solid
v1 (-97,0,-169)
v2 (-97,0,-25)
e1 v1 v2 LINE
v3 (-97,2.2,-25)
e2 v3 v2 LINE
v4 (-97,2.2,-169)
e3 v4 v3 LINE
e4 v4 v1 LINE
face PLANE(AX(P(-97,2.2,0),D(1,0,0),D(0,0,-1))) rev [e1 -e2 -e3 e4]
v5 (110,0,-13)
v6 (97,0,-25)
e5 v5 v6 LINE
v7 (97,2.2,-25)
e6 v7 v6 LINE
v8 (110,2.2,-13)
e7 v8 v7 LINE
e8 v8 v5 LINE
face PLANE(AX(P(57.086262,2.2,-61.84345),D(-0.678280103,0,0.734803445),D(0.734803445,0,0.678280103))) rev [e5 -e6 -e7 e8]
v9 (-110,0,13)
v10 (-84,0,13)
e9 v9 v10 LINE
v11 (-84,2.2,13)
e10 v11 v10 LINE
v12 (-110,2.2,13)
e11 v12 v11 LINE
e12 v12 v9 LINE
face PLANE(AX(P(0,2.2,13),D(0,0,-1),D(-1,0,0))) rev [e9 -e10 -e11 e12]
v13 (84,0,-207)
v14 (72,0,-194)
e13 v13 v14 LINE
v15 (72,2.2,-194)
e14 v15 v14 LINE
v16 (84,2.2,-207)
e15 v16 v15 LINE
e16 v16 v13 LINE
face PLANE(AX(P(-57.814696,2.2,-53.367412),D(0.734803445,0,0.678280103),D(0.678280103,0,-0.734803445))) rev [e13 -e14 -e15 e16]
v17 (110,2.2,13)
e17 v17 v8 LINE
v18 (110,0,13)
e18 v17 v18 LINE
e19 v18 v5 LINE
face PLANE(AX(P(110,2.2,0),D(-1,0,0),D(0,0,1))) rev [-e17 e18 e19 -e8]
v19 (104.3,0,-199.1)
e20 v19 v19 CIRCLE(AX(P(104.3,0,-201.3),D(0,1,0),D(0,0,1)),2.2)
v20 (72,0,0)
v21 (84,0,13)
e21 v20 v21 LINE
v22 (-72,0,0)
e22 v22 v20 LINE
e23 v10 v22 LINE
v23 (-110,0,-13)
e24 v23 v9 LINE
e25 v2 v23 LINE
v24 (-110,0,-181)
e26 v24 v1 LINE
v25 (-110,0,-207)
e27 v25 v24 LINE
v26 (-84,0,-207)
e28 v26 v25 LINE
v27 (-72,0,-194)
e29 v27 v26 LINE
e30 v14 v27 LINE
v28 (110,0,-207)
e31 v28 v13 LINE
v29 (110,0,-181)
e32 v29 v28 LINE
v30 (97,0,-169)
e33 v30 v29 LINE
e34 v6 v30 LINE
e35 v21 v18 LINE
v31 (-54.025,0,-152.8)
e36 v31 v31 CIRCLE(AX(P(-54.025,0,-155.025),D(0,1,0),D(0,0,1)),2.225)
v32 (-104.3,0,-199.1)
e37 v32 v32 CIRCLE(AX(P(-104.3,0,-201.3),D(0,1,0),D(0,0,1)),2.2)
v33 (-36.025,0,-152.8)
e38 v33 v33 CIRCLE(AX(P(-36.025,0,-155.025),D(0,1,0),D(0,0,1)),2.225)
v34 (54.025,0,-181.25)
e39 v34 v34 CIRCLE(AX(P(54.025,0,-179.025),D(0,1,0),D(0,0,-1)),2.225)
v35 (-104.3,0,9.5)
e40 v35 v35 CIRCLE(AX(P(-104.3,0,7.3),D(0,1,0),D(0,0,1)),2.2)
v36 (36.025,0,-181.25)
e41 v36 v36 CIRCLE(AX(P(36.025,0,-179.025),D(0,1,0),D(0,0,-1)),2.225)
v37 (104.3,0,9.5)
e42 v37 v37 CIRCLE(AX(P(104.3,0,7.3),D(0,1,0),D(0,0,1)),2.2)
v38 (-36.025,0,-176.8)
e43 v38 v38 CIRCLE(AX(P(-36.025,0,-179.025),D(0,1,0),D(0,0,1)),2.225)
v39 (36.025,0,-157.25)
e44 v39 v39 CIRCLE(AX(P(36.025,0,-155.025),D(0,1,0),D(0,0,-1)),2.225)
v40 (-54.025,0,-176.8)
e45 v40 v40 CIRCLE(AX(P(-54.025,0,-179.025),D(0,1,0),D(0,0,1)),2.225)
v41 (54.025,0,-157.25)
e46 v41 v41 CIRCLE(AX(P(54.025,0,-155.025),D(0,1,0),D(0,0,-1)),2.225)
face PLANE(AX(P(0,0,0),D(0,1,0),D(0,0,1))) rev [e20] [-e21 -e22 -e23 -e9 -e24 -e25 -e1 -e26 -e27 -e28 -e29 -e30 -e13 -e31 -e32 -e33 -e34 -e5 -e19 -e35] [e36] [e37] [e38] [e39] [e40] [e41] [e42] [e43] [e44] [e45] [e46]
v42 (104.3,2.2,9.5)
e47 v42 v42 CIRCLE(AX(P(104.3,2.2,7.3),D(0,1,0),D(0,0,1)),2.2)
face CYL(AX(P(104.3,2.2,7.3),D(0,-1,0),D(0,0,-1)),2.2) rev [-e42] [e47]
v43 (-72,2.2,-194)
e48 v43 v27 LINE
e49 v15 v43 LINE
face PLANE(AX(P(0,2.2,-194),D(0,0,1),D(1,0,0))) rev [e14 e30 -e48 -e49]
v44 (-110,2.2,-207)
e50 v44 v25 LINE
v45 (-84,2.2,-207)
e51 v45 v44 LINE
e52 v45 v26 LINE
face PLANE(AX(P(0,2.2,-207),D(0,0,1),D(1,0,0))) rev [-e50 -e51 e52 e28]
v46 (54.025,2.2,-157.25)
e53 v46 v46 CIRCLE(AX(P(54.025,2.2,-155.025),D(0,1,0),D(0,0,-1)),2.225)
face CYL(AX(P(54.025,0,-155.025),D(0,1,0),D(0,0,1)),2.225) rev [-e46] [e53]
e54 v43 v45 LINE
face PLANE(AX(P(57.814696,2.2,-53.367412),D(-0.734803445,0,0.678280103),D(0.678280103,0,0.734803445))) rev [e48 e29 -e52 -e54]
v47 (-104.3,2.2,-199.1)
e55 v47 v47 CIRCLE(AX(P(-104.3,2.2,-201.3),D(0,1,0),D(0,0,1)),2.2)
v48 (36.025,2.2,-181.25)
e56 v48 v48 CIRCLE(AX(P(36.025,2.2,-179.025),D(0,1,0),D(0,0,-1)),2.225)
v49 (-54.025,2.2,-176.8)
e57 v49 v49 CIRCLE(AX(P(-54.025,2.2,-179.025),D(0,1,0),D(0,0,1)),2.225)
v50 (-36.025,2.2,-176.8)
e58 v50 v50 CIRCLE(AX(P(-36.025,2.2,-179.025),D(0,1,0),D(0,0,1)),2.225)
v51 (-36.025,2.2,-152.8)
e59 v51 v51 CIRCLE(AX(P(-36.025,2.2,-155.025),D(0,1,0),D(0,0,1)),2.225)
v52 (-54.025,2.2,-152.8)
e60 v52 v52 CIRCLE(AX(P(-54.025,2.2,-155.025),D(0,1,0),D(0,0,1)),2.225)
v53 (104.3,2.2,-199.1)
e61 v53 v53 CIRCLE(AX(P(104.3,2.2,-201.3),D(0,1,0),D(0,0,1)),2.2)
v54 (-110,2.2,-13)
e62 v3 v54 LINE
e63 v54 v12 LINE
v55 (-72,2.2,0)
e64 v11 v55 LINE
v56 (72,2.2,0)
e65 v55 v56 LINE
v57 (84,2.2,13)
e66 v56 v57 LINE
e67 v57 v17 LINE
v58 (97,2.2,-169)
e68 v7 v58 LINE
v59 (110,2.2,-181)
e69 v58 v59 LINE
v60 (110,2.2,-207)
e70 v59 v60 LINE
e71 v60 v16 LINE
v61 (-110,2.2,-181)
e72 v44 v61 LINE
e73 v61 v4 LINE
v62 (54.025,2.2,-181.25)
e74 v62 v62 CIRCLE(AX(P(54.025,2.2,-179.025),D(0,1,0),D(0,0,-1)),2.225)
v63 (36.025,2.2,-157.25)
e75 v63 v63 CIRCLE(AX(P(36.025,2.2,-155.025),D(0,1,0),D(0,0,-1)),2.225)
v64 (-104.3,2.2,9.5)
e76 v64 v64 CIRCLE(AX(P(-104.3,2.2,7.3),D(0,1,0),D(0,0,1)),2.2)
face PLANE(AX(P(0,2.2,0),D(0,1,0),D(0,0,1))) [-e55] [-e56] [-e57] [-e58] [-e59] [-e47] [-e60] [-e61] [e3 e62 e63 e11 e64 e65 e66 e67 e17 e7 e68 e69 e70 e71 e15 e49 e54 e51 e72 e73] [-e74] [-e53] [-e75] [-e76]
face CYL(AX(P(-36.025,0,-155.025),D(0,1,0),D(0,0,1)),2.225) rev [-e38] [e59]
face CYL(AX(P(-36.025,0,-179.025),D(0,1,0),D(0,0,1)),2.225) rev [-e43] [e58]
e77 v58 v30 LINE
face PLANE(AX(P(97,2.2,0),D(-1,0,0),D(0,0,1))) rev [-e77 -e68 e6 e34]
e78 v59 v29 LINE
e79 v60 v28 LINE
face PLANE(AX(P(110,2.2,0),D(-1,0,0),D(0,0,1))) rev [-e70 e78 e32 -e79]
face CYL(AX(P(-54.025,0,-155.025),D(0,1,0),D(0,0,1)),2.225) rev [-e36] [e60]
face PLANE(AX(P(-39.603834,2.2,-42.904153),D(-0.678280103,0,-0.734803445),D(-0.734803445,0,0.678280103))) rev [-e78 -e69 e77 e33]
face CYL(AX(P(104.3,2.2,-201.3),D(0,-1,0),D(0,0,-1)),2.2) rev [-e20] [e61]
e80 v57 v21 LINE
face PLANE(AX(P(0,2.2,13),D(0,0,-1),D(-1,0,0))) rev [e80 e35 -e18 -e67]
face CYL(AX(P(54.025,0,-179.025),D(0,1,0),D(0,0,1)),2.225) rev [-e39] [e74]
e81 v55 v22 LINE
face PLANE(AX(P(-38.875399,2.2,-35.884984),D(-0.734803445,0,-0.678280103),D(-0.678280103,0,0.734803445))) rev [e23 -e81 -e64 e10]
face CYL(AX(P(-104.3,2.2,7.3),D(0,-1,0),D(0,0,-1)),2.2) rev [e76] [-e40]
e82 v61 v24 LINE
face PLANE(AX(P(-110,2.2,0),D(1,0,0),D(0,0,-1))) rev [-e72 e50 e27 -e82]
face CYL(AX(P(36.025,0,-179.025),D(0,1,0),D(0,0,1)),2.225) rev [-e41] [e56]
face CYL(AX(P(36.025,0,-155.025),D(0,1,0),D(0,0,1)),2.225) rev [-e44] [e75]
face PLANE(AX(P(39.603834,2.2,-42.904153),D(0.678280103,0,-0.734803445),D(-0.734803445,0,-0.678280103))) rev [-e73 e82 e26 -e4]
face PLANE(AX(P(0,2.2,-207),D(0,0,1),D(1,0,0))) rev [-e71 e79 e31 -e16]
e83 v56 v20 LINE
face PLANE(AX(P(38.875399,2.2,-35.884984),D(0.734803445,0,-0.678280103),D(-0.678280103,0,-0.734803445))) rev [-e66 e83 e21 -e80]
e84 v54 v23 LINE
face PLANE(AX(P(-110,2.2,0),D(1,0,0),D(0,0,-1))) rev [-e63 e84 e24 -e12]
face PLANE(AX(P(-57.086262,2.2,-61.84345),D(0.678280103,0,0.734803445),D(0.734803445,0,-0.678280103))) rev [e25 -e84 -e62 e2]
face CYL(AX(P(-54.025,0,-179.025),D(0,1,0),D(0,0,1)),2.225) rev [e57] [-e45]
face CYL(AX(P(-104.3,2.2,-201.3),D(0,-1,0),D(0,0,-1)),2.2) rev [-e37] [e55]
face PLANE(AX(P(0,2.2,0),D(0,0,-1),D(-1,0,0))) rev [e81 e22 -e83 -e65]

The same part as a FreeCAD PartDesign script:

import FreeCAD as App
import Part
import Sketcher

V = App.Vector

doc = App.newDocument("Part")
body = doc.addObject("PartDesign::Body", "Body")

# Sketch on XZ plane
sketch1 = body.newObject("Sketcher::SketchObject", "Sketch")
sketch1.AttachmentSupport = (doc.getObject("XZ_Plane"), [""])
sketch1.MapMode = "FlatFace"
sketch1.addGeometry([
    Part.LineSegment(V(84, -207, 0), V(72, -194, 0)),  # 0
    Part.LineSegment(V(72, -194, 0), V(-72, -194, 0)),  # 1
    Part.LineSegment(V(-72, -194, 0), V(-84, -207, 0)),  # 2
    Part.LineSegment(V(-84, -207, 0), V(-110, -207, 0)),  # 3
    Part.LineSegment(V(-110, -207, 0), V(-110, -181, 0)),  # 4
    Part.LineSegment(V(-110, -181, 0), V(-97, -169, 0)),  # 5
    Part.LineSegment(V(-97, -169, 0), V(-97, -25, 0)),  # 6
    Part.LineSegment(V(-97, -25, 0), V(-110, -13, 0)),  # 7
    Part.LineSegment(V(-110, -13, 0), V(-110, 13, 0)),  # 8
    Part.LineSegment(V(-110, 13, 0), V(-84, 13, 0)),  # 9
    Part.LineSegment(V(-84, 13, 0), V(-72, 0, 0)),  # 10
    Part.LineSegment(V(-72, 0, 0), V(72, 0, 0)),  # 11
    Part.LineSegment(V(72, 0, 0), V(84, 13, 0)),  # 12
    Part.LineSegment(V(84, 13, 0), V(110, 13, 0)),  # 13
    Part.LineSegment(V(110, 13, 0), V(110, -13, 0)),  # 14
    Part.LineSegment(V(110, -13, 0), V(97, -25, 0)),  # 15
    Part.LineSegment(V(97, -25, 0), V(97, -169, 0)),  # 16
    Part.LineSegment(V(97, -169, 0), V(110, -181, 0)),  # 17
    Part.LineSegment(V(110, -181, 0), V(110, -207, 0)),  # 18
    Part.LineSegment(V(110, -207, 0), V(84, -207, 0)),  # 19
    Part.Circle(V(-104.3, 7.3, 0), V(0, 0, 1), 2.2),  # 20
    Part.Circle(V(104.3, 7.3, 0), V(0, 0, 1), 2.2),  # 21
    Part.Circle(V(-104.3, -201.3, 0), V(0, 0, 1), 2.2),  # 22
    Part.Circle(V(104.3, -201.3, 0), V(0, 0, 1), 2.2),  # 23
], False)
sketch1.addConstraint([
    Sketcher.Constraint("Coincident", 0, 2, 1, 1),
    Sketcher.Constraint("Coincident", 1, 2, 2, 1),
    Sketcher.Constraint("Coincident", 2, 2, 3, 1),
    Sketcher.Constraint("Coincident", 3, 2, 4, 1),
    Sketcher.Constraint("Coincident", 4, 2, 5, 1),
    Sketcher.Constraint("Coincident", 5, 2, 6, 1),
    Sketcher.Constraint("Coincident", 6, 2, 7, 1),
    Sketcher.Constraint("Coincident", 7, 2, 8, 1),
    Sketcher.Constraint("Coincident", 8, 2, 9, 1),
    Sketcher.Constraint("Coincident", 9, 2, 10, 1),
    Sketcher.Constraint("Coincident", 10, 2, 11, 1),
    Sketcher.Constraint("Coincident", 11, 2, 12, 1),
    Sketcher.Constraint("Coincident", 12, 2, 13, 1),
    Sketcher.Constraint("Coincident", 13, 2, 14, 1),
    Sketcher.Constraint("Coincident", 14, 2, 15, 1),
    Sketcher.Constraint("Coincident", 15, 2, 16, 1),
    Sketcher.Constraint("Coincident", 16, 2, 17, 1),
    Sketcher.Constraint("Coincident", 17, 2, 18, 1),
    Sketcher.Constraint("Coincident", 18, 2, 19, 1),
    Sketcher.Constraint("Coincident", 19, 2, 0, 1),
    Sketcher.Constraint("Horizontal", 1),
    Sketcher.Constraint("Horizontal", 3),
    Sketcher.Constraint("Vertical", 4),
    Sketcher.Constraint("Vertical", 6),
    Sketcher.Constraint("Vertical", 8),
    Sketcher.Constraint("Horizontal", 9),
    Sketcher.Constraint("Horizontal", 11),
    Sketcher.Constraint("Horizontal", 13),
    Sketcher.Constraint("Vertical", 14),
    Sketcher.Constraint("Vertical", 16),
    Sketcher.Constraint("Vertical", 18),
    Sketcher.Constraint("Horizontal", 19),
    Sketcher.Constraint("Equal", 20, 21),
    Sketcher.Constraint("Equal", 21, 22),
    Sketcher.Constraint("Equal", 22, 23),
    Sketcher.Constraint("Symmetric", 10, 2, 11, 2, -1, 1),
    Sketcher.Constraint("Symmetric", 7, 2, 13, 2, -1, 1),
    Sketcher.Constraint("Symmetric", 20, 3, 21, 3, -2),
    Sketcher.Constraint("Symmetric", 22, 3, 23, 3, -2),
    Sketcher.Constraint("Symmetric", 9, 2, 12, 2, -2),
    Sketcher.Constraint("Symmetric", 6, 2, 15, 2, -2),
    Sketcher.Constraint("Symmetric", 4, 2, 17, 2, -2),
    Sketcher.Constraint("Symmetric", 2, 2, 19, 2, -2),
    Sketcher.Constraint("Perpendicular", 0, 5),
    Sketcher.Constraint("Perpendicular", 2, 7),
    Sketcher.Constraint("Perpendicular", 5, 10),
    Sketcher.Constraint("Perpendicular", 7, 12),
    Sketcher.Constraint("Perpendicular", 10, 15),
    Sketcher.Constraint("Perpendicular", 12, 17),
    Sketcher.Constraint("Vertical", 20, 3, 22, 3),
    Sketcher.Constraint("Vertical", 4, 2, 7, 2),
    Sketcher.Constraint("Vertical", 2, 2, 9, 2),
    Sketcher.Constraint("Vertical", 1, 2, 10, 2),
    Sketcher.Constraint("Equal", 19, 4),
    Sketcher.Constraint("Equal", 11, 6),
    Sketcher.Constraint("Equal", 4, 8),
    Sketcher.Constraint("Equal", 2, 5),
    Sketcher.Constraint("Diameter", 20, 4.4),
    Sketcher.Constraint("DistanceX", 1, 2, 1, 1, 144.0),
    Sketcher.Constraint("DistanceX", 3, 2, 3, 1, 26.0),
    Sketcher.Constraint("DistanceY", 0, 2, -1, 1, 194.0),
    Sketcher.Constraint("DistanceX", 20, 3, -1, 1, 104.3),
    Sketcher.Constraint("DistanceY", -1, 1, 20, 3, 7.3),
    Sketcher.Constraint("DistanceY", 22, 3, -1, 1, 201.3),
])
pad1 = body.newObject("PartDesign::Pad", "Pad")
pad1.Profile = sketch1
pad1.Length = 2.2
pad1.Reversed = True

# Sketch on XZ plane
sketch2 = body.newObject("Sketcher::SketchObject", "Sketch001")
sketch2.AttachmentSupport = (doc.getObject("XZ_Plane"), [""])
sketch2.MapMode = "FlatFace"
sketch2.AttachmentOffset = App.Placement(V(0, 0, -2.2), App.Rotation())
sketch2.addGeometry([
    Part.Circle(V(-54, -179, 0), V(0, 0, 1), 2.2),  # 0
    Part.Circle(V(-36, -179, 0), V(0, 0, 1), 2.2),  # 1
    Part.Circle(V(-54, -155, 0), V(0, 0, 1), 2.2),  # 2
    Part.Circle(V(-36, -155, 0), V(0, 0, 1), 2.2),  # 3
    Part.Circle(V(36, -155, 0), V(0, 0, 1), 2.2),  # 4
    Part.Circle(V(54, -155, 0), V(0, 0, 1), 2.2),  # 5
    Part.Circle(V(36, -179, 0), V(0, 0, 1), 2.2),  # 6
    Part.Circle(V(54, -179, 0), V(0, 0, 1), 2.2),  # 7
], False)
sketch2.addConstraint([
    Sketcher.Constraint("Equal", 0, 1),
    Sketcher.Constraint("Equal", 1, 2),
    Sketcher.Constraint("Equal", 2, 3),
    Sketcher.Constraint("Equal", 3, 4),
    Sketcher.Constraint("Equal", 4, 5),
    Sketcher.Constraint("Equal", 5, 6),
    Sketcher.Constraint("Equal", 6, 7),
    Sketcher.Constraint("Symmetric", 3, 3, 4, 3, -2),
    Sketcher.Constraint("Symmetric", 2, 3, 5, 3, -2),
    Sketcher.Constraint("Symmetric", 1, 3, 6, 3, -2),
    Sketcher.Constraint("Symmetric", 0, 3, 7, 3, -2),
    Sketcher.Constraint("Horizontal", 0, 3, 1, 3),
    Sketcher.Constraint("Horizontal", 2, 3, 3, 3),
    Sketcher.Constraint("Vertical", 0, 3, 2, 3),
    Sketcher.Constraint("Vertical", 1, 3, 3, 3),
    Sketcher.Constraint("Diameter", 0, 4.45),
    Sketcher.Constraint("DistanceX", 0, 3, 1, 3, 18.0),
    Sketcher.Constraint("DistanceY", 0, 3, 2, 3, 24.0),
    Sketcher.Constraint("DistanceX", 3, 3, 4, 3, 72.05),
    Sketcher.Constraint("DistanceY", 0, 3, -1, 1, 179.025),
])
pocket1 = body.newObject("PartDesign::Pocket", "Pocket")
pocket1.Profile = sketch2
pocket1.Type = "ThroughAll"
pocket1.Reversed = True

doc.recompute()
